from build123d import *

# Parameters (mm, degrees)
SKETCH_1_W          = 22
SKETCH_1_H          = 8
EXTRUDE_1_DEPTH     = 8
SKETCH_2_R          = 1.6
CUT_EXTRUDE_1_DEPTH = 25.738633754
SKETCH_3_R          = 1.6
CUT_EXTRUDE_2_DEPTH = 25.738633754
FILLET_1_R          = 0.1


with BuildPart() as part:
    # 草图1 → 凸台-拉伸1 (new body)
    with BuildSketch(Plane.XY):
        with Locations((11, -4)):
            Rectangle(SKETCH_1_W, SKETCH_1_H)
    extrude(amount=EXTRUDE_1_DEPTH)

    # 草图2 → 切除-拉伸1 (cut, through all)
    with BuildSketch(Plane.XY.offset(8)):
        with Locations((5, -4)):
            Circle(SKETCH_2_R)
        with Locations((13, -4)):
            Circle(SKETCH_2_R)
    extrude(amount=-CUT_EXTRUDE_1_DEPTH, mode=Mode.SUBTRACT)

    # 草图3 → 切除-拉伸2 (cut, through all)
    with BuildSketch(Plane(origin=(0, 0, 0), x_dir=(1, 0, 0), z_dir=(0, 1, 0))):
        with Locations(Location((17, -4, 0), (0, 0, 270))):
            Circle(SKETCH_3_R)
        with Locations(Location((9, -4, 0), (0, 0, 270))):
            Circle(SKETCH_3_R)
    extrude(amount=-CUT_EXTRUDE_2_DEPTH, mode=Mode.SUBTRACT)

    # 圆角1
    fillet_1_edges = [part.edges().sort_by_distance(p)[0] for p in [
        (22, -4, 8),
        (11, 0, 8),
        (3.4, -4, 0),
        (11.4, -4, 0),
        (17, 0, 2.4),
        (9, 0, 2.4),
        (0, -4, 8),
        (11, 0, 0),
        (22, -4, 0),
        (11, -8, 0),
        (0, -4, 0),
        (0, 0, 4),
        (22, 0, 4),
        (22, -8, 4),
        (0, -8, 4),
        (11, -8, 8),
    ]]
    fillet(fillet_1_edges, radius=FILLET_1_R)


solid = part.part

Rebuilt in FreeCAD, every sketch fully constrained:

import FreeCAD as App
import Part
import Sketcher
Q = App.Units.Quantity


def edges_at(feature, points):
    """Names of the edges that pass closest to the given points."""
    edges = feature.Shape.Edges
    near = lambda p: min(range(len(edges)), key=lambda i: edges[i].distToShape(Part.Vertex(*p))[0])
    return sorted({f"Edge{near(p) + 1}" for p in points})


def add_polygon(sketch, points):
    """Adds a closed chain of lines whose ends are joined by coincident constraints."""
    first, n = sketch.GeometryCount, len(points)
    for a, b in zip(points, points[1:] + points[:1]):
        sketch.addGeometry(Part.LineSegment(App.Vector(*a, 0), App.Vector(*b, 0)), False)
    for i in range(n):
        sketch.addConstraint(Sketcher.Constraint("Coincident", first + i, 2, first + (i + 1) % n, 1))

doc = App.newDocument("Part")
body = doc.addObject("PartDesign::Body", "Body")

sketch1 = doc.addObject("Sketcher::SketchObject", "Sketch")
body.addObject(sketch1)
sketch1.AttachmentSupport = (doc.XY_Plane, [""])
sketch1.MapMode = "FlatFace"
add_polygon(sketch1, [(0, 0), (0, -8), (22, -8), (22, 0)])
sketch1.addConstraint([
    Sketcher.Constraint("Vertical", 0),
    Sketcher.Constraint("Horizontal", 1),
    Sketcher.Constraint("Vertical", 2),
    Sketcher.Constraint("Horizontal", 3),
    Sketcher.Constraint("Coincident", 3, 2, -1, 1),
    Sketcher.Constraint("DistanceX", 1, 1, 1, 2, Q("22 mm")),
    Sketcher.Constraint("DistanceY", 0, 2, 0, 1, Q("8 mm")),
])
pad1 = doc.addObject("PartDesign::Pad", "Pad")
body.addObject(pad1)
pad1.Profile = sketch1
pad1.Length = 8

sketch2 = doc.addObject("Sketcher::SketchObject", "Sketch001")
body.addObject(sketch2)
sketch2.AttachmentSupport = (doc.XY_Plane, [""])
sketch2.MapMode = "FlatFace"
sketch2.AttachmentOffset = App.Placement(App.Vector(0, 0, 8), App.Rotation())
sketch2.addGeometry([
    Part.Circle(App.Vector(5, -4, 0), App.Vector(0, 0, 1), 1.6),
    Part.Circle(App.Vector(13, -4, 0), App.Vector(0, 0, 1), 1.6),
], False)
sketch2.addConstraint([
    Sketcher.Constraint("Equal", 0, 1),
    Sketcher.Constraint("Horizontal", 0, 3, 1, 3),
    Sketcher.Constraint("Diameter", 0, Q("3.2 mm")),
    Sketcher.Constraint("DistanceX", -1, 1, 0, 3, Q("5 mm")),
    Sketcher.Constraint("DistanceY", 0, 3, -1, 1, Q("4 mm")),
    Sketcher.Constraint("DistanceX", -1, 1, 1, 3, Q("13 mm")),
])
pocket1 = doc.addObject("PartDesign::Pocket", "Pocket")
body.addObject(pocket1)
pocket1.Profile = sketch2
pocket1.Type = "ThroughAll"

sketch3 = doc.addObject("Sketcher::SketchObject", "Sketch002")
body.addObject(sketch3)
sketch3.AttachmentSupport = (doc.XZ_Plane, [""])
sketch3.MapMode = "FlatFace"
sketch3.addGeometry([
    Part.Circle(App.Vector(17, 4, 0), App.Vector(0, 0, 1), 1.6),
    Part.Circle(App.Vector(9, 4, 0), App.Vector(0, 0, 1), 1.6),
], False)
sketch3.addConstraint([
    Sketcher.Constraint("Equal", 0, 1),
    Sketcher.Constraint("Horizontal", 0, 3, 1, 3),
    Sketcher.Constraint("Diameter", 0, Q("3.2 mm")),
    Sketcher.Constraint("DistanceX", -1, 1, 0, 3, Q("17 mm")),
    Sketcher.Constraint("DistanceY", -1, 1, 0, 3, Q("4 mm")),
    Sketcher.Constraint("DistanceX", -1, 1, 1, 3, Q("9 mm")),
])
pocket2 = doc.addObject("PartDesign::Pocket", "Pocket001")
body.addObject(pocket2)
pocket2.Profile = sketch3
pocket2.Type = "ThroughAll"
pocket2.Reversed = True
doc.recompute()

fillet = doc.addObject("PartDesign::Fillet", "Fillet")
body.addObject(fillet)
fillet.Base = (pocket2, edges_at(pocket2, [
    (22, -4, 8),
    (11, 0, 8),
    (3.4, -4, 0),
    (11.4, -4, 0),
    (17, 0, 2.4),
    (9, 0, 2.4),
    (0, -4, 8),
    (11, 0, 0),
    (22, -4, 0),
    (11, -8, 0),
    (0, -4, 0),
    (0, 0, 4),
    (22, 0, 4),
    (22, -8, 4),
    (0, -8, 4),
    (11, -8, 8),
]))
fillet.Radius = 0.1

doc.recompute()
